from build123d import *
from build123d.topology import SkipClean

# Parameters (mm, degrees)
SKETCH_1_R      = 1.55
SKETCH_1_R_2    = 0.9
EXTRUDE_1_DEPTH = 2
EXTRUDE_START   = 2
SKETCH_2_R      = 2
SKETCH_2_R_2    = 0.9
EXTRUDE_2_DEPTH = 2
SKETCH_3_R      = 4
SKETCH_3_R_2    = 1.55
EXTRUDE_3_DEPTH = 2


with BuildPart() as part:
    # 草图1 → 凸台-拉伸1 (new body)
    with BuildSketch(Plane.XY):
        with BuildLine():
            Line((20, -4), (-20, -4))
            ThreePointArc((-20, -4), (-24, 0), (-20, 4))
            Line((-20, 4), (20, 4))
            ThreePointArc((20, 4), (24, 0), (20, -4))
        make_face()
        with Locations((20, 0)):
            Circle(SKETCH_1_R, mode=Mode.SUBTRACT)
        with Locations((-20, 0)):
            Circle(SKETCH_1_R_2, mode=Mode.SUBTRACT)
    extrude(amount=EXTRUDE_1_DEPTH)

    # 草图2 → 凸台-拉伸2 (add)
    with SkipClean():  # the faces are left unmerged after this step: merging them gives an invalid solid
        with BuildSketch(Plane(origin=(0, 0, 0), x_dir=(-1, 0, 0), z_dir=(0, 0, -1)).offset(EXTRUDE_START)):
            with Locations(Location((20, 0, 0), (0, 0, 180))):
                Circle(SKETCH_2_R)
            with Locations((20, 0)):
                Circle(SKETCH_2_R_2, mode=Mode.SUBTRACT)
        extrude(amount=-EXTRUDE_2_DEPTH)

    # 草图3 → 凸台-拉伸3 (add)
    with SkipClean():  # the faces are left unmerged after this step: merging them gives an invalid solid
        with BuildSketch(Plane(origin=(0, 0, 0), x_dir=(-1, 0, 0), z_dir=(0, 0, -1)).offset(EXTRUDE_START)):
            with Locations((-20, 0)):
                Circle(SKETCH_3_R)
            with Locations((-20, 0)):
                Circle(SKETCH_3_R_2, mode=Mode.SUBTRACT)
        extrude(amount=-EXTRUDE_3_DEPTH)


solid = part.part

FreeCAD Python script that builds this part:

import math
import FreeCAD as App
import Part
import Sketcher

V = App.Vector
Q = App.Units.Quantity

doc = App.newDocument("Part")
body = doc.addObject("PartDesign::Body", "Body")

# Sketch on XY plane
sketch1 = body.newObject("Sketcher::SketchObject", "Sketch")
sketch1.AttachmentSupport = (doc.getObject("XY_Plane"), [""])
sketch1.MapMode = "FlatFace"
sketch1.addGeometry([
    Part.LineSegment(V(-20, -4, 0), V(20, -4, 0)),  # 0
    Part.ArcOfCircle(Part.Circle(V(20, 0, 0), V(0, 0, 1), 4), math.radians(-90), math.radians(90)),  # 1
    Part.LineSegment(V(20, 4, 0), V(-20, 4, 0)),  # 2
    Part.ArcOfCircle(Part.Circle(V(-20, 0, 0), V(0, 0, 1), 4), math.radians(90), math.radians(270)),  # 3
    Part.Circle(V(20, 0, 0), V(0, 0, 1), 1.6),  # 4
    Part.Circle(V(-20, 0, 0), V(0, 0, 1), 0.9),  # 5
], False)
sketch1.addConstraint([
    Sketcher.Constraint("Tangent", 0, 2, 1, 1),
    Sketcher.Constraint("Tangent", 1, 2, 2, 1),
    Sketcher.Constraint("Tangent", 2, 2, 3, 1),
    Sketcher.Constraint("Tangent", 3, 2, 0, 1),
    Sketcher.Constraint("Horizontal", 0),
    Sketcher.Constraint("Horizontal", 2),
    Sketcher.Constraint("Coincident", 4, 3, 1, 3),
    Sketcher.Constraint("Coincident", 5, 3, 3, 3),
    Sketcher.Constraint("Symmetric", 1, 3, 3, 3, -1, 1),
    Sketcher.Constraint("Radius", 1, Q("4 mm")),
    Sketcher.Constraint("Diameter", 4, Q("3.1 mm")),
    Sketcher.Constraint("Diameter", 5, Q("1.8 mm")),
    Sketcher.Constraint("DistanceX", 0, 1, 0, 2, Q("40 mm")),
])
pad1 = body.newObject("PartDesign::Pad", "Pad")
pad1.Profile = sketch1
pad1.Length = 2

# Sketch on XY plane
sketch2 = body.newObject("Sketcher::SketchObject", "Sketch001")
sketch2.AttachmentSupport = (doc.getObject("XY_Plane"), [""])
sketch2.MapMode = "FlatFace"
sketch2.AttachmentOffset = App.Placement(V(0, 0, -2), App.Rotation())
sketch2.addGeometry([
    Part.Circle(V(-20, 0, 0), V(0, 0, 1), 2),
    Part.Circle(V(-20, 0, 0), V(0, 0, 1), 0.9),
], False)
sketch2.addConstraint([
    Sketcher.Constraint("Coincident", 1, 3, 0, 3),
    Sketcher.Constraint("PointOnObject", 0, 3, -1),
    Sketcher.Constraint("Diameter", 0, Q("4 mm")),
    Sketcher.Constraint("Diameter", 1, Q("1.8 mm")),
    Sketcher.Constraint("DistanceX", 0, 3, -1, 1, Q("20 mm")),
])
pad2 = body.newObject("PartDesign::Pad", "Pad001")
pad2.Profile = sketch2
pad2.Length = 2

# Sketch on XY plane
sketch3 = body.newObject("Sketcher::SketchObject", "Sketch002")
sketch3.AttachmentSupport = (doc.getObject("XY_Plane"), [""])
sketch3.MapMode = "FlatFace"
sketch3.AttachmentOffset = App.Placement(V(0, 0, -2), App.Rotation())
sketch3.addGeometry([
    Part.Circle(V(20, 0, 0), V(0, 0, 1), 4),
    Part.Circle(V(20, 0, 0), V(0, 0, 1), 1.6),
], False)
sketch3.addConstraint([
    Sketcher.Constraint("Coincident", 1, 3, 0, 3),
    Sketcher.Constraint("PointOnObject", 0, 3, -1),
    Sketcher.Constraint("Diameter", 0, Q("8 mm")),
    Sketcher.Constraint("Diameter", 1, Q("3.1 mm")),
    Sketcher.Constraint("DistanceX", -1, 1, 0, 3, Q("20 mm")),
])
pad3 = body.newObject("PartDesign::Pad", "Pad002")
pad3.Profile = sketch3
pad3.Length = 2

doc.recompute()
